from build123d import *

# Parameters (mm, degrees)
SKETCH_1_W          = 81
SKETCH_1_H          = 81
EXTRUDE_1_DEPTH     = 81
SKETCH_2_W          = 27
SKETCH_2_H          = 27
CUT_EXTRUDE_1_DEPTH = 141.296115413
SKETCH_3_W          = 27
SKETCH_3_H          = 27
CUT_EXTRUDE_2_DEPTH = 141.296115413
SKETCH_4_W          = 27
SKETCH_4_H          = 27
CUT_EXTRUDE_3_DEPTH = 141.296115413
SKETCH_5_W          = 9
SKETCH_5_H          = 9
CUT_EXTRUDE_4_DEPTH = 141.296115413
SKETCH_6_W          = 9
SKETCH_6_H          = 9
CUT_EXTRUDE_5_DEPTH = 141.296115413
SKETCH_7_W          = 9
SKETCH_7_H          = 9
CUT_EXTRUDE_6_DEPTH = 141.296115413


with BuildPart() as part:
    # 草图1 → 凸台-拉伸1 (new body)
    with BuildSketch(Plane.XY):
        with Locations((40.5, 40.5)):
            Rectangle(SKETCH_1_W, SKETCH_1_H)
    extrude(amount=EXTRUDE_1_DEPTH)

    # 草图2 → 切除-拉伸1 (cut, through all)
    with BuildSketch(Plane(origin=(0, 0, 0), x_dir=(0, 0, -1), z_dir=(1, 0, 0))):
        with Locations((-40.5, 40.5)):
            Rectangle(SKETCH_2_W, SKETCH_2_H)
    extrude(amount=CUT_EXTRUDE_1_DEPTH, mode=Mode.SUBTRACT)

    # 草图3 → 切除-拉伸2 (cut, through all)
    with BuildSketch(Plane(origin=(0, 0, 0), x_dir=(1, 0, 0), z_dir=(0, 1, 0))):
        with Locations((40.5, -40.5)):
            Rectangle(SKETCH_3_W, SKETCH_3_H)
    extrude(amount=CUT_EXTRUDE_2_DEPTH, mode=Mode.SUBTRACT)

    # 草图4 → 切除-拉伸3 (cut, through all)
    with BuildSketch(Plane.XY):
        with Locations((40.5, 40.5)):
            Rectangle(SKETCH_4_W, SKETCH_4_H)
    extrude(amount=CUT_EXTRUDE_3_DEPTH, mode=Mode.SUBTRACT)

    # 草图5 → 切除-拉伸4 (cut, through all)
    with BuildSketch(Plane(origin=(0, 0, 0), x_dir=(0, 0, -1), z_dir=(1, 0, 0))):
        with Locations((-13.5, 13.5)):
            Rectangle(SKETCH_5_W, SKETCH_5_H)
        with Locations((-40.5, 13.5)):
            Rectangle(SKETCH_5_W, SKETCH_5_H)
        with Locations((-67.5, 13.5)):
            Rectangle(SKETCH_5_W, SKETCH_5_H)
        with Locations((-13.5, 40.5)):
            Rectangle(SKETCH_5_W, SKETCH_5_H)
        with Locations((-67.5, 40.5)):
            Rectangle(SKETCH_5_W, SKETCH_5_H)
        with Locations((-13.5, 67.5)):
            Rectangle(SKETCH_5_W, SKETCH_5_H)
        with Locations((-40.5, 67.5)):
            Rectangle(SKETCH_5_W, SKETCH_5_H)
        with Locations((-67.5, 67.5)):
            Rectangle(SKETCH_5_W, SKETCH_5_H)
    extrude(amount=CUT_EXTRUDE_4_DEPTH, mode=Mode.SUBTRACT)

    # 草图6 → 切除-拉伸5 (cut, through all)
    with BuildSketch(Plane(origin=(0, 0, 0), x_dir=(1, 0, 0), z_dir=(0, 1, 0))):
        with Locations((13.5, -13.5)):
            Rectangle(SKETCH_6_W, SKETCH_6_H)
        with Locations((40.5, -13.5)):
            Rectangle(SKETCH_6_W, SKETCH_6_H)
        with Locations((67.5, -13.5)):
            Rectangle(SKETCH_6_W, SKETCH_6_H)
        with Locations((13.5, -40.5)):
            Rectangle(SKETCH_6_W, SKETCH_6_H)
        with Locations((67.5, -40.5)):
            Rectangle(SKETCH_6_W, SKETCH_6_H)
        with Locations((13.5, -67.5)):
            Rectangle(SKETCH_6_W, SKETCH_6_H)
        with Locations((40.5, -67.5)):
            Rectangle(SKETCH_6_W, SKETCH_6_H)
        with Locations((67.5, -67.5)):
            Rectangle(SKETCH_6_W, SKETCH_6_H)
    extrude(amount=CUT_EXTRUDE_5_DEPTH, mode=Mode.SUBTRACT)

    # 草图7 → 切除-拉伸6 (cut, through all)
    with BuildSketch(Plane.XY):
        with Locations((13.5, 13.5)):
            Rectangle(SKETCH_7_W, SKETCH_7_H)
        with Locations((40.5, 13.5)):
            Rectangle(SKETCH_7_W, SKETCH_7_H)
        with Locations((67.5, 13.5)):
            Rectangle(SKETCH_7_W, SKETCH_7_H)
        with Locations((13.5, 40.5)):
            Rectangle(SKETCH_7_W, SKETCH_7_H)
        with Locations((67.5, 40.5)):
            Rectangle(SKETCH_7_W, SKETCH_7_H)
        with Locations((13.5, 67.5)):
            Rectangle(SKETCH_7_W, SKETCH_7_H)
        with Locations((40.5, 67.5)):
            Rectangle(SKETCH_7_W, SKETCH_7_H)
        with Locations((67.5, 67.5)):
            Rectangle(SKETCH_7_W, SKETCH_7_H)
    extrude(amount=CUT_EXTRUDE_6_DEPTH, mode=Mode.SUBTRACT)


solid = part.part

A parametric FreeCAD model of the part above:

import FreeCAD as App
import Part
import Sketcher
Q = App.Units.Quantity

doc = App.newDocument("Part")
params = doc.addObject("Spreadsheet::Sheet", "Params")
for row, (alias, value) in enumerate([
    ("sketch1_width", "81 mm"),
    ("pad1_length", "81 mm"),
    ("sketch2_width", "27 mm"),
    ("sketch3_width", "27 mm"),
    ("sketch4_width", "27 mm"),
    ("sketch5_width", "9 mm"),
    ("sketch6_width", "9 mm"),
    ("sketch7_width", "9 mm"),
], start=1):
    params.set(f"A{row}", alias)
    params.set(f"B{row}", "=" + value)
    params.setAlias(f"B{row}", alias)

body = doc.addObject("PartDesign::Body", "Body")

sketch1 = body.newObject("Sketcher::SketchObject", "Sketch")
sketch1.AttachmentSupport = (doc.getObject("XY_Plane"), [""])
sketch1.MapMode = "FlatFace"
sketch1.addGeometry(Part.LineSegment(App.Vector(0, 81, 0), App.Vector(0, 0, 0)), False)
sketch1.addGeometry(Part.LineSegment(App.Vector(0, 0, 0), App.Vector(81, 0, 0)), False)
sketch1.addGeometry(Part.LineSegment(App.Vector(81, 0, 0), App.Vector(81, 81, 0)), False)
sketch1.addGeometry(Part.LineSegment(App.Vector(81, 81, 0), App.Vector(0, 81, 0)), False)
sketch1.addConstraint(Sketcher.Constraint("Coincident", 0, 2, 1, 1))
sketch1.addConstraint(Sketcher.Constraint("Coincident", 1, 2, 2, 1))
sketch1.addConstraint(Sketcher.Constraint("Coincident", 2, 2, 3, 1))
sketch1.addConstraint(Sketcher.Constraint("Coincident", 3, 2, 0, 1))
sketch1.addConstraint(Sketcher.Constraint("Vertical", 0))
sketch1.addConstraint(Sketcher.Constraint("Horizontal", 1))
sketch1.addConstraint(Sketcher.Constraint("Vertical", 2))
sketch1.addConstraint(Sketcher.Constraint("Horizontal", 3))
sketch1.addConstraint(Sketcher.Constraint("Coincident", 0, 2, -1, 1))
sketch1.addConstraint(Sketcher.Constraint("Equal", 3, 0))
sketch1.addConstraint(Sketcher.Constraint("DistanceX", 1, 1, 1, 2, Q("81 mm")))
sketch1.setExpression("Constraints[10]", "Params.sketch1_width")
pad1 = body.newObject("PartDesign::Pad", "Pad")
pad1.Profile = sketch1
pad1.setExpression("Length", "Params.pad1_length")

sketch2 = body.newObject("Sketcher::SketchObject", "Sketch001")
sketch2.AttachmentSupport = (doc.getObject("YZ_Plane"), [""])
sketch2.MapMode = "FlatFace"
sketch2.addGeometry(Part.LineSegment(App.Vector(54, 54, 0), App.Vector(27, 54, 0)), False)
sketch2.addGeometry(Part.LineSegment(App.Vector(27, 54, 0), App.Vector(27, 27, 0)), False)
sketch2.addGeometry(Part.LineSegment(App.Vector(27, 27, 0), App.Vector(54, 27, 0)), False)
sketch2.addGeometry(Part.LineSegment(App.Vector(54, 27, 0), App.Vector(54, 54, 0)), False)
sketch2.addConstraint(Sketcher.Constraint("Coincident", 0, 2, 1, 1))
sketch2.addConstraint(Sketcher.Constraint("Coincident", 1, 2, 2, 1))
sketch2.addConstraint(Sketcher.Constraint("Coincident", 2, 2, 3, 1))
sketch2.addConstraint(Sketcher.Constraint("Coincident", 3, 2, 0, 1))
sketch2.addConstraint(Sketcher.Constraint("Horizontal", 0))
sketch2.addConstraint(Sketcher.Constraint("Vertical", 1))
sketch2.addConstraint(Sketcher.Constraint("Horizontal", 2))
sketch2.addConstraint(Sketcher.Constraint("Vertical", 3))
sketch2.addConstraint(Sketcher.Constraint("Equal", 2, 1))
sketch2.addConstraint(Sketcher.Constraint("DistanceX", 0, 2, 0, 1, Q("27 mm")))
sketch2.addConstraint(Sketcher.Constraint("DistanceX", -1, 1, 0, 2, Q("27 mm")))
sketch2.addConstraint(Sketcher.Constraint("DistanceY", -1, 1, 0, 2, Q("54 mm")))
sketch2.setExpression("Constraints[9]", "Params.sketch2_width")
pocket1 = body.newObject("PartDesign::Pocket", "Pocket")
pocket1.Profile = sketch2
pocket1.Type = "ThroughAll"
pocket1.Reversed = True

sketch3 = body.newObject("Sketcher::SketchObject", "Sketch002")
sketch3.AttachmentSupport = (doc.getObject("XZ_Plane"), [""])
sketch3.MapMode = "FlatFace"
sketch3.addGeometry(Part.LineSegment(App.Vector(27, 27, 0), App.Vector(27, 54, 0)), False)
sketch3.addGeometry(Part.LineSegment(App.Vector(27, 54, 0), App.Vector(54, 54, 0)), False)
sketch3.addGeometry(Part.LineSegment(App.Vector(54, 54, 0), App.Vector(54, 27, 0)), False)
sketch3.addGeometry(Part.LineSegment(App.Vector(54, 27, 0), App.Vector(27, 27, 0)), False)
sketch3.addConstraint(Sketcher.Constraint("Coincident", 0, 2, 1, 1))
sketch3.addConstraint(Sketcher.Constraint("Coincident", 1, 2, 2, 1))
sketch3.addConstraint(Sketcher.Constraint("Coincident", 2, 2, 3, 1))
sketch3.addConstraint(Sketcher.Constraint("Coincident", 3, 2, 0, 1))
sketch3.addConstraint(Sketcher.Constraint("Vertical", 0))
sketch3.addConstraint(Sketcher.Constraint("Horizontal", 1))
sketch3.addConstraint(Sketcher.Constraint("Vertical", 2))
sketch3.addConstraint(Sketcher.Constraint("Horizontal", 3))
sketch3.addConstraint(Sketcher.Constraint("Equal", 3, 0))
sketch3.addConstraint(Sketcher.Constraint("DistanceX", 1, 1, 1, 2, Q("27 mm")))
sketch3.addConstraint(Sketcher.Constraint("DistanceX", -1, 1, 0, 2, Q("27 mm")))
sketch3.addConstraint(Sketcher.Constraint("DistanceY", -1, 1, 0, 2, Q("54 mm")))
sketch3.setExpression("Constraints[9]", "Params.sketch3_width")
pocket2 = body.newObject("PartDesign::Pocket", "Pocket001")
pocket2.Profile = sketch3
pocket2.Type = "ThroughAll"

sketch4 = body.newObject("Sketcher::SketchObject", "Sketch003")
sketch4.AttachmentSupport = (doc.getObject("XY_Plane"), [""])
sketch4.MapMode = "FlatFace"
sketch4.addGeometry(Part.LineSegment(App.Vector(27, 54, 0), App.Vector(27, 27, 0)), False)
sketch4.addGeometry(Part.LineSegment(App.Vector(27, 27, 0), App.Vector(54, 27, 0)), False)
sketch4.addGeometry(Part.LineSegment(App.Vector(54, 27, 0), App.Vector(54, 54, 0)), False)
sketch4.addGeometry(Part.LineSegment(App.Vector(54, 54, 0), App.Vector(27, 54, 0)), False)
sketch4.addConstraint(Sketcher.Constraint("Coincident", 0, 2, 1, 1))
sketch4.addConstraint(Sketcher.Constraint("Coincident", 1, 2, 2, 1))
sketch4.addConstraint(Sketcher.Constraint("Coincident", 2, 2, 3, 1))
sketch4.addConstraint(Sketcher.Constraint("Coincident", 3, 2, 0, 1))
sketch4.addConstraint(Sketcher.Constraint("Vertical", 0))
sketch4.addConstraint(Sketcher.Constraint("Horizontal", 1))
sketch4.addConstraint(Sketcher.Constraint("Vertical", 2))
sketch4.addConstraint(Sketcher.Constraint("Horizontal", 3))
sketch4.addConstraint(Sketcher.Constraint("Equal", 3, 0))
sketch4.addConstraint(Sketcher.Constraint("DistanceX", 1, 1, 1, 2, Q("27 mm")))
sketch4.addConstraint(Sketcher.Constraint("DistanceX", -1, 1, 0, 2, Q("27 mm")))
sketch4.addConstraint(Sketcher.Constraint("DistanceY", -1, 1, 0, 2, Q("27 mm")))
sketch4.setExpression("Constraints[9]", "Params.sketch4_width")
pocket3 = body.newObject("PartDesign::Pocket", "Pocket002")
pocket3.Profile = sketch4
pocket3.Type = "ThroughAll"
pocket3.Reversed = True

sketch5 = body.newObject("Sketcher::SketchObject", "Sketch004")
sketch5.AttachmentSupport = (doc.getObject("YZ_Plane"), [""])
sketch5.MapMode = "FlatFace"
sketch5.addGeometry(Part.LineSegment(App.Vector(18, 18, 0), App.Vector(9, 18, 0)), False)
sketch5.addGeometry(Part.LineSegment(App.Vector(9, 18, 0), App.Vector(9, 9, 0)), False)
sketch5.addGeometry(Part.LineSegment(App.Vector(9, 9, 0), App.Vector(18, 9, 0)), False)
sketch5.addGeometry(Part.LineSegment(App.Vector(18, 9, 0), App.Vector(18, 18, 0)), False)
sketch5.addGeometry(Part.LineSegment(App.Vector(18, 45, 0), App.Vector(9, 45, 0)), False)
sketch5.addGeometry(Part.LineSegment(App.Vector(9, 45, 0), App.Vector(9, 36, 0)), False)
sketch5.addGeometry(Part.LineSegment(App.Vector(9, 36, 0), App.Vector(18, 36, 0)), False)
sketch5.addGeometry(Part.LineSegment(App.Vector(18, 36, 0), App.Vector(18, 45, 0)), False)
sketch5.addGeometry(Part.LineSegment(App.Vector(18, 72, 0), App.Vector(9, 72, 0)), False)
sketch5.addGeometry(Part.LineSegment(App.Vector(9, 72, 0), App.Vector(9, 63, 0)), False)
sketch5.addGeometry(Part.LineSegment(App.Vector(9, 63, 0), App.Vector(18, 63, 0)), False)
sketch5.addGeometry(Part.LineSegment(App.Vector(18, 63, 0), App.Vector(18, 72, 0)), False)
sketch5.addGeometry(Part.LineSegment(App.Vector(45, 18, 0), App.Vector(36, 18, 0)), False)
sketch5.addGeometry(Part.LineSegment(App.Vector(36, 18, 0), App.Vector(36, 9, 0)), False)
sketch5.addGeometry(Part.LineSegment(App.Vector(36, 9, 0), App.Vector(45, 9, 0)), False)
sketch5.addGeometry(Part.LineSegment(App.Vector(45, 9, 0), App.Vector(45, 18, 0)), False)
sketch5.addGeometry(Part.LineSegment(App.Vector(45, 72, 0), App.Vector(36, 72, 0)), False)
sketch5.addGeometry(Part.LineSegment(App.Vector(36, 72, 0), App.Vector(36, 63, 0)), False)
sketch5.addGeometry(Part.LineSegment(App.Vector(36, 63, 0), App.Vector(45, 63, 0)), False)
sketch5.addGeometry(Part.LineSegment(App.Vector(45, 63, 0), App.Vector(45, 72, 0)), False)
sketch5.addGeometry(Part.LineSegment(App.Vector(72, 18, 0), App.Vector(63, 18, 0)), False)
sketch5.addGeometry(Part.LineSegment(App.Vector(63, 18, 0), App.Vector(63, 9, 0)), False)
sketch5.addGeometry(Part.LineSegment(App.Vector(63, 9, 0), App.Vector(72, 9, 0)), False)
sketch5.addGeometry(Part.LineSegment(App.Vector(72, 9, 0), App.Vector(72, 18, 0)), False)
sketch5.addGeometry(Part.LineSegment(App.Vector(72, 45, 0), App.Vector(63, 45, 0)), False)
sketch5.addGeometry(Part.LineSegment(App.Vector(63, 45, 0), App.Vector(63, 36, 0)), False)
sketch5.addGeometry(Part.LineSegment(App.Vector(63, 36, 0), App.Vector(72, 36, 0)), False)
sketch5.addGeometry(Part.LineSegment(App.Vector(72, 36, 0), App.Vector(72, 45, 0)), False)
sketch5.addGeometry(Part.LineSegment(App.Vector(72, 72, 0), App.Vector(63, 72, 0)), False)
sketch5.addGeometry(Part.LineSegment(App.Vector(63, 72, 0), App.Vector(63, 63, 0)), False)
sketch5.addGeometry(Part.LineSegment(App.Vector(63, 63, 0), App.Vector(72, 63, 0)), False)
sketch5.addGeometry(Part.LineSegment(App.Vector(72, 63, 0), App.Vector(72, 72, 0)), False)
sketch5.addConstraint(Sketcher.Constraint("Coincident", 0, 2, 1, 1))
sketch5.addConstraint(Sketcher.Constraint("Coincident", 1, 2, 2, 1))
sketch5.addConstraint(Sketcher.Constraint("Coincident", 2, 2, 3, 1))
sketch5.addConstraint(Sketcher.Constraint("Coincident", 3, 2, 0, 1))
sketch5.addConstraint(Sketcher.Constraint("Coincident", 4, 2, 5, 1))
sketch5.addConstraint(Sketcher.Constraint("Coincident", 5, 2, 6, 1))
sketch5.addConstraint(Sketcher.Constraint("Coincident", 6, 2, 7, 1))
sketch5.addConstraint(Sketcher.Constraint("Coincident", 7, 2, 4, 1))
sketch5.addConstraint(Sketcher.Constraint("Coincident", 8, 2, 9, 1))
sketch5.addConstraint(Sketcher.Constraint("Coincident", 9, 2, 10, 1))
sketch5.addConstraint(Sketcher.Constraint("Coincident", 10, 2, 11, 1))
sketch5.addConstraint(Sketcher.Constraint("Coincident", 11, 2, 8, 1))
sketch5.addConstraint(Sketcher.Constraint("Coincident", 12, 2, 13, 1))
sketch5.addConstraint(Sketcher.Constraint("Coincident", 13, 2, 14, 1))
sketch5.addConstraint(Sketcher.Constraint("Coincident", 14, 2, 15, 1))
sketch5.addConstraint(Sketcher.Constraint("Coincident", 15, 2, 12, 1))
sketch5.addConstraint(Sketcher.Constraint("Coincident", 16, 2, 17, 1))
sketch5.addConstraint(Sketcher.Constraint("Coincident", 17, 2, 18, 1))
sketch5.addConstraint(Sketcher.Constraint("Coincident", 18, 2, 19, 1))
sketch5.addConstraint(Sketcher.Constraint("Coincident", 19, 2, 16, 1))
sketch5.addConstraint(Sketcher.Constraint("Coincident", 20, 2, 21, 1))
sketch5.addConstraint(Sketcher.Constraint("Coincident", 21, 2, 22, 1))
sketch5.addConstraint(Sketcher.Constraint("Coincident", 22, 2, 23, 1))
sketch5.addConstraint(Sketcher.Constraint("Coincident", 23, 2, 20, 1))
sketch5.addConstraint(Sketcher.Constraint("Coincident", 24, 2, 25, 1))
sketch5.addConstraint(Sketcher.Constraint("Coincident", 25, 2, 26, 1))
sketch5.addConstraint(Sketcher.Constraint("Coincident", 26, 2, 27, 1))
sketch5.addConstraint(Sketcher.Constraint("Coincident", 27, 2, 24, 1))
sketch5.addConstraint(Sketcher.Constraint("Coincident", 28, 2, 29, 1))
sketch5.addConstraint(Sketcher.Constraint("Coincident", 29, 2, 30, 1))
sketch5.addConstraint(Sketcher.Constraint("Coincident", 30, 2, 31, 1))
sketch5.addConstraint(Sketcher.Constraint("Coincident", 31, 2, 28, 1))
sketch5.addConstraint(Sketcher.Constraint("Horizontal", 0))
sketch5.addConstraint(Sketcher.Constraint("Vertical", 1))
sketch5.addConstraint(Sketcher.Constraint("Horizontal", 2))
sketch5.addConstraint(Sketcher.Constraint("Vertical", 3))
sketch5.addConstraint(Sketcher.Constraint("Horizontal", 4))
sketch5.addConstraint(Sketcher.Constraint("Vertical", 5))
sketch5.addConstraint(Sketcher.Constraint("Horizontal", 6))
sketch5.addConstraint(Sketcher.Constraint("Vertical", 7))
sketch5.addConstraint(Sketcher.Constraint("Horizontal", 8))
sketch5.addConstraint(Sketcher.Constraint("Vertical", 9))
sketch5.addConstraint(Sketcher.Constraint("Horizontal", 10))
sketch5.addConstraint(Sketcher.Constraint("Vertical", 11))
sketch5.addConstraint(Sketcher.Constraint("Horizontal", 12))
sketch5.addConstraint(Sketcher.Constraint("Vertical", 13))
sketch5.addConstraint(Sketcher.Constraint("Horizontal", 14))
sketch5.addConstraint(Sketcher.Constraint("Vertical", 15))
sketch5.addConstraint(Sketcher.Constraint("Horizontal", 16))
sketch5.addConstraint(Sketcher.Constraint("Vertical", 17))
sketch5.addConstraint(Sketcher.Constraint("Horizontal", 18))
sketch5.addConstraint(Sketcher.Constraint("Vertical", 19))
sketch5.addConstraint(Sketcher.Constraint("Horizontal", 20))
sketch5.addConstraint(Sketcher.Constraint("Vertical", 21))
sketch5.addConstraint(Sketcher.Constraint("Horizontal", 22))
sketch5.addConstraint(Sketcher.Constraint("Vertical", 23))
sketch5.addConstraint(Sketcher.Constraint("Horizontal", 24))
sketch5.addConstraint(Sketcher.Constraint("Vertical", 25))
sketch5.addConstraint(Sketcher.Constraint("Horizontal", 26))
sketch5.addConstraint(Sketcher.Constraint("Vertical", 27))
sketch5.addConstraint(Sketcher.Constraint("Horizontal", 28))
sketch5.addConstraint(Sketcher.Constraint("Vertical", 29))
sketch5.addConstraint(Sketcher.Constraint("Horizontal", 30))
sketch5.addConstraint(Sketcher.Constraint("Vertical", 31))
sketch5.addConstraint(Sketcher.Constraint("Horizontal", 3, 2, 12, 2))
sketch5.addConstraint(Sketcher.Constraint("Horizontal", 2, 2, 13, 2))
sketch5.addConstraint(Sketcher.Constraint("Horizontal", 11, 2, 16, 2))
sketch5.addConstraint(Sketcher.Constraint("Horizontal", 10, 2, 17, 2))
sketch5.addConstraint(Sketcher.Constraint("Horizontal", 15, 2, 20, 2))
sketch5.addConstraint(Sketcher.Constraint("Horizontal", 14, 2, 21, 2))
sketch5.addConstraint(Sketcher.Constraint("Horizontal", 7, 2, 24, 2))
sketch5.addConstraint(Sketcher.Constraint("Horizontal", 6, 2, 25, 2))
sketch5.addConstraint(Sketcher.Constraint("Horizontal", 19, 2, 28, 2))
sketch5.addConstraint(Sketcher.Constraint("Horizontal", 18, 2, 29, 2))
sketch5.addConstraint(Sketcher.Constraint("Vertical", 1, 2, 4, 2))
sketch5.addConstraint(Sketcher.Constraint("Vertical", 3, 2, 6, 2))
sketch5.addConstraint(Sketcher.Constraint("Vertical", 5, 2, 8, 2))
sketch5.addConstraint(Sketcher.Constraint("Vertical", 7, 2, 10, 2))
sketch5.addConstraint(Sketcher.Constraint("Vertical", 13, 2, 16, 2))
sketch5.addConstraint(Sketcher.Constraint("Vertical", 15, 2, 18, 2))
sketch5.addConstraint(Sketcher.Constraint("Vertical", 21, 2, 24, 2))
sketch5.addConstraint(Sketcher.Constraint("Vertical", 23, 2, 26, 2))
sketch5.addConstraint(Sketcher.Constraint("Vertical", 25, 2, 28, 2))
sketch5.addConstraint(Sketcher.Constraint("Vertical", 27, 2, 30, 2))
sketch5.addConstraint(Sketcher.Constraint("Equal", 10, 12))
sketch5.addConstraint(Sketcher.Constraint("Equal", 18, 20))
sketch5.addConstraint(Sketcher.Constraint("Equal", 30, 1))
sketch5.addConstraint(Sketcher.Constraint("Equal", 3, 5))
sketch5.addConstraint(Sketcher.Constraint("Equal", 7, 9))
sketch5.addConstraint(Sketcher.Constraint("DistanceX", 0, 2, 0, 1, Q("9 mm")))
sketch5.addConstraint(Sketcher.Constraint("DistanceX", -1, 1, 0, 2, Q("9 mm")))
sketch5.addConstraint(Sketcher.Constraint("DistanceY", -1, 1, 0, 2, Q("18 mm")))
sketch5.addConstraint(Sketcher.Constraint("DistanceY", -1, 1, 4, 2, Q("45 mm")))
sketch5.addConstraint(Sketcher.Constraint("DistanceY", -1, 1, 8, 2, Q("72 mm")))
sketch5.addConstraint(Sketcher.Constraint("DistanceX", -1, 1, 12, 2, Q("36 mm")))
sketch5.addConstraint(Sketcher.Constraint("DistanceX", -1, 1, 20, 2, Q("63 mm")))
sketch5.setExpression("Constraints[89]", "Params.sketch5_width")
pocket4 = body.newObject("PartDesign::Pocket", "Pocket003")
pocket4.Profile = sketch5
pocket4.Type = "ThroughAll"
pocket4.Reversed = True

sketch6 = body.newObject("Sketcher::SketchObject", "Sketch005")
sketch6.AttachmentSupport = (doc.getObject("XZ_Plane"), [""])
sketch6.MapMode = "FlatFace"
sketch6.addGeometry(Part.LineSegment(App.Vector(9, 9, 0), App.Vector(9, 18, 0)), False)
sketch6.addGeometry(Part.LineSegment(App.Vector(9, 18, 0), App.Vector(18, 18, 0)), False)
sketch6.addGeometry(Part.LineSegment(App.Vector(18, 18, 0), App.Vector(18, 9, 0)), False)
sketch6.addGeometry(Part.LineSegment(App.Vector(18, 9, 0), App.Vector(9, 9, 0)), False)
sketch6.addGeometry(Part.LineSegment(App.Vector(36, 9, 0), App.Vector(36, 18, 0)), False)
sketch6.addGeometry(Part.LineSegment(App.Vector(36, 18, 0), App.Vector(45, 18, 0)), False)
sketch6.addGeometry(Part.LineSegment(App.Vector(45, 18, 0), App.Vector(45, 9, 0)), False)
sketch6.addGeometry(Part.LineSegment(App.Vector(45, 9, 0), App.Vector(36, 9, 0)), False)
sketch6.addGeometry(Part.LineSegment(App.Vector(63, 9, 0), App.Vector(63, 18, 0)), False)
sketch6.addGeometry(Part.LineSegment(App.Vector(63, 18, 0), App.Vector(72, 18, 0)), False)
sketch6.addGeometry(Part.LineSegment(App.Vector(72, 18, 0), App.Vector(72, 9, 0)), False)
sketch6.addGeometry(Part.LineSegment(App.Vector(72, 9, 0), App.Vector(63, 9, 0)), False)
sketch6.addGeometry(Part.LineSegment(App.Vector(9, 36, 0), App.Vector(9, 45, 0)), False)
sketch6.addGeometry(Part.LineSegment(App.Vector(9, 45, 0), App.Vector(18, 45, 0)), False)
sketch6.addGeometry(Part.LineSegment(App.Vector(18, 45, 0), App.Vector(18, 36, 0)), False)
sketch6.addGeometry(Part.LineSegment(App.Vector(18, 36, 0), App.Vector(9, 36, 0)), False)
sketch6.addGeometry(Part.LineSegment(App.Vector(63, 36, 0), App.Vector(63, 45, 0)), False)
sketch6.addGeometry(Part.LineSegment(App.Vector(63, 45, 0), App.Vector(72, 45, 0)), False)
sketch6.addGeometry(Part.LineSegment(App.Vector(72, 45, 0), App.Vector(72, 36, 0)), False)
sketch6.addGeometry(Part.LineSegment(App.Vector(72, 36, 0), App.Vector(63, 36, 0)), False)
sketch6.addGeometry(Part.LineSegment(App.Vector(9, 63, 0), App.Vector(9, 72, 0)), False)
sketch6.addGeometry(Part.LineSegment(App.Vector(9, 72, 0), App.Vector(18, 72, 0)), False)
sketch6.addGeometry(Part.LineSegment(App.Vector(18, 72, 0), App.Vector(18, 63, 0)), False)
sketch6.addGeometry(Part.LineSegment(App.Vector(18, 63, 0), App.Vector(9, 63, 0)), False)
sketch6.addGeometry(Part.LineSegment(App.Vector(36, 63, 0), App.Vector(36, 72, 0)), False)
sketch6.addGeometry(Part.LineSegment(App.Vector(36, 72, 0), App.Vector(45, 72, 0)), False)
sketch6.addGeometry(Part.LineSegment(App.Vector(45, 72, 0), App.Vector(45, 63, 0)), False)
sketch6.addGeometry(Part.LineSegment(App.Vector(45, 63, 0), App.Vector(36, 63, 0)), False)
sketch6.addGeometry(Part.LineSegment(App.Vector(63, 63, 0), App.Vector(63, 72, 0)), False)
sketch6.addGeometry(Part.LineSegment(App.Vector(63, 72, 0), App.Vector(72, 72, 0)), False)
sketch6.addGeometry(Part.LineSegment(App.Vector(72, 72, 0), App.Vector(72, 63, 0)), False)
sketch6.addGeometry(Part.LineSegment(App.Vector(72, 63, 0), App.Vector(63, 63, 0)), False)
sketch6.addConstraint(Sketcher.Constraint("Coincident", 0, 2, 1, 1))
sketch6.addConstraint(Sketcher.Constraint("Coincident", 1, 2, 2, 1))
sketch6.addConstraint(Sketcher.Constraint("Coincident", 2, 2, 3, 1))
sketch6.addConstraint(Sketcher.Constraint("Coincident", 3, 2, 0, 1))
sketch6.addConstraint(Sketcher.Constraint("Coincident", 4, 2, 5, 1))
sketch6.addConstraint(Sketcher.Constraint("Coincident", 5, 2, 6, 1))
sketch6.addConstraint(Sketcher.Constraint("Coincident", 6, 2, 7, 1))
sketch6.addConstraint(Sketcher.Constraint("Coincident", 7, 2, 4, 1))
sketch6.addConstraint(Sketcher.Constraint("Coincident", 8, 2, 9, 1))
sketch6.addConstraint(Sketcher.Constraint("Coincident", 9, 2, 10, 1))
sketch6.addConstraint(Sketcher.Constraint("Coincident", 10, 2, 11, 1))
sketch6.addConstraint(Sketcher.Constraint("Coincident", 11, 2, 8, 1))
sketch6.addConstraint(Sketcher.Constraint("Coincident", 12, 2, 13, 1))
sketch6.addConstraint(Sketcher.Constraint("Coincident", 13, 2, 14, 1))
sketch6.addConstraint(Sketcher.Constraint("Coincident", 14, 2, 15, 1))
sketch6.addConstraint(Sketcher.Constraint("Coincident", 15, 2, 12, 1))
sketch6.addConstraint(Sketcher.Constraint("Coincident", 16, 2, 17, 1))
sketch6.addConstraint(Sketcher.Constraint("Coincident", 17, 2, 18, 1))
sketch6.addConstraint(Sketcher.Constraint("Coincident", 18, 2, 19, 1))
sketch6.addConstraint(Sketcher.Constraint("Coincident", 19, 2, 16, 1))
sketch6.addConstraint(Sketcher.Constraint("Coincident", 20, 2, 21, 1))
sketch6.addConstraint(Sketcher.Constraint("Coincident", 21, 2, 22, 1))
sketch6.addConstraint(Sketcher.Constraint("Coincident", 22, 2, 23, 1))
sketch6.addConstraint(Sketcher.Constraint("Coincident", 23, 2, 20, 1))
sketch6.addConstraint(Sketcher.Constraint("Coincident", 24, 2, 25, 1))
sketch6.addConstraint(Sketcher.Constraint("Coincident", 25, 2, 26, 1))
sketch6.addConstraint(Sketcher.Constraint("Coincident", 26, 2, 27, 1))
sketch6.addConstraint(Sketcher.Constraint("Coincident", 27, 2, 24, 1))
sketch6.addConstraint(Sketcher.Constraint("Coincident", 28, 2, 29, 1))
sketch6.addConstraint(Sketcher.Constraint("Coincident", 29, 2, 30, 1))
sketch6.addConstraint(Sketcher.Constraint("Coincident", 30, 2, 31, 1))
sketch6.addConstraint(Sketcher.Constraint("Coincident", 31, 2, 28, 1))
sketch6.addConstraint(Sketcher.Constraint("Vertical", 0))
sketch6.addConstraint(Sketcher.Constraint("Horizontal", 1))
sketch6.addConstraint(Sketcher.Constraint("Vertical", 2))
sketch6.addConstraint(Sketcher.Constraint("Horizontal", 3))
sketch6.addConstraint(Sketcher.Constraint("Vertical", 4))
sketch6.addConstraint(Sketcher.Constraint("Horizontal", 5))
sketch6.addConstraint(Sketcher.Constraint("Vertical", 6))
sketch6.addConstraint(Sketcher.Constraint("Horizontal", 7))
sketch6.addConstraint(Sketcher.Constraint("Vertical", 8))
sketch6.addConstraint(Sketcher.Constraint("Horizontal", 9))
sketch6.addConstraint(Sketcher.Constraint("Vertical", 10))
sketch6.addConstraint(Sketcher.Constraint("Horizontal", 11))
sketch6.addConstraint(Sketcher.Constraint("Vertical", 12))
sketch6.addConstraint(Sketcher.Constraint("Horizontal", 13))
sketch6.addConstraint(Sketcher.Constraint("Vertical", 14))
sketch6.addConstraint(Sketcher.Constraint("Horizontal", 15))
sketch6.addConstraint(Sketcher.Constraint("Vertical", 16))
sketch6.addConstraint(Sketcher.Constraint("Horizontal", 17))
sketch6.addConstraint(Sketcher.Constraint("Vertical", 18))
sketch6.addConstraint(Sketcher.Constraint("Horizontal", 19))
sketch6.addConstraint(Sketcher.Constraint("Vertical", 20))
sketch6.addConstraint(Sketcher.Constraint("Horizontal", 21))
sketch6.addConstraint(Sketcher.Constraint("Vertical", 22))
sketch6.addConstraint(Sketcher.Constraint("Horizontal", 23))
sketch6.addConstraint(Sketcher.Constraint("Vertical", 24))
sketch6.addConstraint(Sketcher.Constraint("Horizontal", 25))
sketch6.addConstraint(Sketcher.Constraint("Vertical", 26))
sketch6.addConstraint(Sketcher.Constraint("Horizontal", 27))
sketch6.addConstraint(Sketcher.Constraint("Vertical", 28))
sketch6.addConstraint(Sketcher.Constraint("Horizontal", 29))
sketch6.addConstraint(Sketcher.Constraint("Vertical", 30))
sketch6.addConstraint(Sketcher.Constraint("Horizontal", 31))
sketch6.addConstraint(Sketcher.Constraint("Horizontal", 1, 2, 4, 2))
sketch6.addConstraint(Sketcher.Constraint("Horizontal", 3, 2, 6, 2))
sketch6.addConstraint(Sketcher.Constraint("Horizontal", 5, 2, 8, 2))
sketch6.addConstraint(Sketcher.Constraint("Horizontal", 7, 2, 10, 2))
sketch6.addConstraint(Sketcher.Constraint("Horizontal", 13, 2, 16, 2))
sketch6.addConstraint(Sketcher.Constraint("Horizontal", 15, 2, 18, 2))
sketch6.addConstraint(Sketcher.Constraint("Horizontal", 21, 2, 24, 2))
sketch6.addConstraint(Sketcher.Constraint("Horizontal", 23, 2, 26, 2))
sketch6.addConstraint(Sketcher.Constraint("Horizontal", 25, 2, 28, 2))
sketch6.addConstraint(Sketcher.Constraint("Horizontal", 27, 2, 30, 2))
sketch6.addConstraint(Sketcher.Constraint("Vertical", 3, 2, 12, 2))
sketch6.addConstraint(Sketcher.Constraint("Vertical", 2, 2, 13, 2))
sketch6.addConstraint(Sketcher.Constraint("Vertical", 11, 2, 16, 2))
sketch6.addConstraint(Sketcher.Constraint("Vertical", 10, 2, 17, 2))
sketch6.addConstraint(Sketcher.Constraint("Vertical", 15, 2, 20, 2))
sketch6.addConstraint(Sketcher.Constraint("Vertical", 14, 2, 21, 2))
sketch6.addConstraint(Sketcher.Constraint("Vertical", 7, 2, 24, 2))
sketch6.addConstraint(Sketcher.Constraint("Vertical", 6, 2, 25, 2))
sketch6.addConstraint(Sketcher.Constraint("Vertical", 19, 2, 28, 2))
sketch6.addConstraint(Sketcher.Constraint("Vertical", 18, 2, 29, 2))
sketch6.addConstraint(Sketcher.Constraint("Equal", 3, 5))
sketch6.addConstraint(Sketcher.Constraint("Equal", 7, 9))
sketch6.addConstraint(Sketcher.Constraint("Equal", 31, 0))
sketch6.addConstraint(Sketcher.Constraint("Equal", 10, 12))
sketch6.addConstraint(Sketcher.Constraint("Equal", 18, 20))
sketch6.addConstraint(Sketcher.Constraint("DistanceX", 1, 1, 1, 2, Q("9 mm")))
sketch6.addConstraint(Sketcher.Constraint("DistanceX", -1, 1, 0, 2, Q("9 mm")))
sketch6.addConstraint(Sketcher.Constraint("DistanceY", -1, 1, 0, 2, Q("18 mm")))
sketch6.addConstraint(Sketcher.Constraint("DistanceX", -1, 1, 4, 2, Q("36 mm")))
sketch6.addConstraint(Sketcher.Constraint("DistanceX", -1, 1, 8, 2, Q("63 mm")))
sketch6.addConstraint(Sketcher.Constraint("DistanceY", -1, 1, 12, 2, Q("45 mm")))
sketch6.addConstraint(Sketcher.Constraint("DistanceY", -1, 1, 20, 2, Q("72 mm")))
sketch6.setExpression("Constraints[89]", "Params.sketch6_width")
pocket5 = body.newObject("PartDesign::Pocket", "Pocket004")
pocket5.Profile = sketch6
pocket5.Type = "ThroughAll"

sketch7 = body.newObject("Sketcher::SketchObject", "Sketch006")
sketch7.AttachmentSupport = (doc.getObject("XY_Plane"), [""])
sketch7.MapMode = "FlatFace"
sketch7.addGeometry(Part.LineSegment(App.Vector(9, 18, 0), App.Vector(9, 9, 0)), False)
sketch7.addGeometry(Part.LineSegment(App.Vector(9, 9, 0), App.Vector(18, 9, 0)), False)
sketch7.addGeometry(Part.LineSegment(App.Vector(18, 9, 0), App.Vector(18, 18, 0)), False)
sketch7.addGeometry(Part.LineSegment(App.Vector(18, 18, 0), App.Vector(9, 18, 0)), False)
sketch7.addGeometry(Part.LineSegment(App.Vector(36, 18, 0), App.Vector(36, 9, 0)), False)
sketch7.addGeometry(Part.LineSegment(App.Vector(36, 9, 0), App.Vector(45, 9, 0)), False)
sketch7.addGeometry(Part.LineSegment(App.Vector(45, 9, 0), App.Vector(45, 18, 0)), False)
sketch7.addGeometry(Part.LineSegment(App.Vector(45, 18, 0), App.Vector(36, 18, 0)), False)
sketch7.addGeometry(Part.LineSegment(App.Vector(63, 18, 0), App.Vector(63, 9, 0)), False)
sketch7.addGeometry(Part.LineSegment(App.Vector(63, 9, 0), App.Vector(72, 9, 0)), False)
sketch7.addGeometry(Part.LineSegment(App.Vector(72, 9, 0), App.Vector(72, 18, 0)), False)
sketch7.addGeometry(Part.LineSegment(App.Vector(72, 18, 0), App.Vector(63, 18, 0)), False)
sketch7.addGeometry(Part.LineSegment(App.Vector(9, 45, 0), App.Vector(9, 36, 0)), False)
sketch7.addGeometry(Part.LineSegment(App.Vector(9, 36, 0), App.Vector(18, 36, 0)), False)
sketch7.addGeometry(Part.LineSegment(App.Vector(18, 36, 0), App.Vector(18, 45, 0)), False)
sketch7.addGeometry(Part.LineSegment(App.Vector(18, 45, 0), App.Vector(9, 45, 0)), False)
sketch7.addGeometry(Part.LineSegment(App.Vector(63, 45, 0), App.Vector(63, 36, 0)), False)
sketch7.addGeometry(Part.LineSegment(App.Vector(63, 36, 0), App.Vector(72, 36, 0)), False)
sketch7.addGeometry(Part.LineSegment(App.Vector(72, 36, 0), App.Vector(72, 45, 0)), False)
sketch7.addGeometry(Part.LineSegment(App.Vector(72, 45, 0), App.Vector(63, 45, 0)), False)
sketch7.addGeometry(Part.LineSegment(App.Vector(9, 72, 0), App.Vector(9, 63, 0)), False)
sketch7.addGeometry(Part.LineSegment(App.Vector(9, 63, 0), App.Vector(18, 63, 0)), False)
sketch7.addGeometry(Part.LineSegment(App.Vector(18, 63, 0), App.Vector(18, 72, 0)), False)
sketch7.addGeometry(Part.LineSegment(App.Vector(18, 72, 0), App.Vector(9, 72, 0)), False)
sketch7.addGeometry(Part.LineSegment(App.Vector(36, 72, 0), App.Vector(36, 63, 0)), False)
sketch7.addGeometry(Part.LineSegment(App.Vector(36, 63, 0), App.Vector(45, 63, 0)), False)
sketch7.addGeometry(Part.LineSegment(App.Vector(45, 63, 0), App.Vector(45, 72, 0)), False)
sketch7.addGeometry(Part.LineSegment(App.Vector(45, 72, 0), App.Vector(36, 72, 0)), False)
sketch7.addGeometry(Part.LineSegment(App.Vector(63, 72, 0), App.Vector(63, 63, 0)), False)
sketch7.addGeometry(Part.LineSegment(App.Vector(63, 63, 0), App.Vector(72, 63, 0)), False)
sketch7.addGeometry(Part.LineSegment(App.Vector(72, 63, 0), App.Vector(72, 72, 0)), False)
sketch7.addGeometry(Part.LineSegment(App.Vector(72, 72, 0), App.Vector(63, 72, 0)), False)
sketch7.addConstraint(Sketcher.Constraint("Coincident", 0, 2, 1, 1))
sketch7.addConstraint(Sketcher.Constraint("Coincident", 1, 2, 2, 1))
sketch7.addConstraint(Sketcher.Constraint("Coincident", 2, 2, 3, 1))
sketch7.addConstraint(Sketcher.Constraint("Coincident", 3, 2, 0, 1))
sketch7.addConstraint(Sketcher.Constraint("Coincident", 4, 2, 5, 1))
sketch7.addConstraint(Sketcher.Constraint("Coincident", 5, 2, 6, 1))
sketch7.addConstraint(Sketcher.Constraint("Coincident", 6, 2, 7, 1))
sketch7.addConstraint(Sketcher.Constraint("Coincident", 7, 2, 4, 1))
sketch7.addConstraint(Sketcher.Constraint("Coincident", 8, 2, 9, 1))
sketch7.addConstraint(Sketcher.Constraint("Coincident", 9, 2, 10, 1))
sketch7.addConstraint(Sketcher.Constraint("Coincident", 10, 2, 11, 1))
sketch7.addConstraint(Sketcher.Constraint("Coincident", 11, 2, 8, 1))
sketch7.addConstraint(Sketcher.Constraint("Coincident", 12, 2, 13, 1))
sketch7.addConstraint(Sketcher.Constraint("Coincident", 13, 2, 14, 1))
sketch7.addConstraint(Sketcher.Constraint("Coincident", 14, 2, 15, 1))
sketch7.addConstraint(Sketcher.Constraint("Coincident", 15, 2, 12, 1))
sketch7.addConstraint(Sketcher.Constraint("Coincident", 16, 2, 17, 1))
sketch7.addConstraint(Sketcher.Constraint("Coincident", 17, 2, 18, 1))
sketch7.addConstraint(Sketcher.Constraint("Coincident", 18, 2, 19, 1))
sketch7.addConstraint(Sketcher.Constraint("Coincident", 19, 2, 16, 1))
sketch7.addConstraint(Sketcher.Constraint("Coincident", 20, 2, 21, 1))
sketch7.addConstraint(Sketcher.Constraint("Coincident", 21, 2, 22, 1))
sketch7.addConstraint(Sketcher.Constraint("Coincident", 22, 2, 23, 1))
sketch7.addConstraint(Sketcher.Constraint("Coincident", 23, 2, 20, 1))
sketch7.addConstraint(Sketcher.Constraint("Coincident", 24, 2, 25, 1))
sketch7.addConstraint(Sketcher.Constraint("Coincident", 25, 2, 26, 1))
sketch7.addConstraint(Sketcher.Constraint("Coincident", 26, 2, 27, 1))
sketch7.addConstraint(Sketcher.Constraint("Coincident", 27, 2, 24, 1))
sketch7.addConstraint(Sketcher.Constraint("Coincident", 28, 2, 29, 1))
sketch7.addConstraint(Sketcher.Constraint("Coincident", 29, 2, 30, 1))
sketch7.addConstraint(Sketcher.Constraint("Coincident", 30, 2, 31, 1))
sketch7.addConstraint(Sketcher.Constraint("Coincident", 31, 2, 28, 1))
sketch7.addConstraint(Sketcher.Constraint("Vertical", 0))
sketch7.addConstraint(Sketcher.Constraint("Horizontal", 1))
sketch7.addConstraint(Sketcher.Constraint("Vertical", 2))
sketch7.addConstraint(Sketcher.Constraint("Horizontal", 3))
sketch7.addConstraint(Sketcher.Constraint("Vertical", 4))
sketch7.addConstraint(Sketcher.Constraint("Horizontal", 5))
sketch7.addConstraint(Sketcher.Constraint("Vertical", 6))
sketch7.addConstraint(Sketcher.Constraint("Horizontal", 7))
sketch7.addConstraint(Sketcher.Constraint("Vertical", 8))
sketch7.addConstraint(Sketcher.Constraint("Horizontal", 9))
sketch7.addConstraint(Sketcher.Constraint("Vertical", 10))
sketch7.addConstraint(Sketcher.Constraint("Horizontal", 11))
sketch7.addConstraint(Sketcher.Constraint("Vertical", 12))
sketch7.addConstraint(Sketcher.Constraint("Horizontal", 13))
sketch7.addConstraint(Sketcher.Constraint("Vertical", 14))
sketch7.addConstraint(Sketcher.Constraint("Horizontal", 15))
sketch7.addConstraint(Sketcher.Constraint("Vertical", 16))
sketch7.addConstraint(Sketcher.Constraint("Horizontal", 17))
sketch7.addConstraint(Sketcher.Constraint("Vertical", 18))
sketch7.addConstraint(Sketcher.Constraint("Horizontal", 19))
sketch7.addConstraint(Sketcher.Constraint("Vertical", 20))
sketch7.addConstraint(Sketcher.Constraint("Horizontal", 21))
sketch7.addConstraint(Sketcher.Constraint("Vertical", 22))
sketch7.addConstraint(Sketcher.Constraint("Horizontal", 23))
sketch7.addConstraint(Sketcher.Constraint("Vertical", 24))
sketch7.addConstraint(Sketcher.Constraint("Horizontal", 25))
sketch7.addConstraint(Sketcher.Constraint("Vertical", 26))
sketch7.addConstraint(Sketcher.Constraint("Horizontal", 27))
sketch7.addConstraint(Sketcher.Constraint("Vertical", 28))
sketch7.addConstraint(Sketcher.Constraint("Horizontal", 29))
sketch7.addConstraint(Sketcher.Constraint("Vertical", 30))
sketch7.addConstraint(Sketcher.Constraint("Horizontal", 31))
sketch7.addConstraint(Sketcher.Constraint("Horizontal", 1, 2, 4, 2))
sketch7.addConstraint(Sketcher.Constraint("Horizontal", 3, 2, 6, 2))
sketch7.addConstraint(Sketcher.Constraint("Horizontal", 5, 2, 8, 2))
sketch7.addConstraint(Sketcher.Constraint("Horizontal", 7, 2, 10, 2))
sketch7.addConstraint(Sketcher.Constraint("Horizontal", 13, 2, 16, 2))
sketch7.addConstraint(Sketcher.Constraint("Horizontal", 15, 2, 18, 2))
sketch7.addConstraint(Sketcher.Constraint("Horizontal", 21, 2, 24, 2))
sketch7.addConstraint(Sketcher.Constraint("Horizontal", 23, 2, 26, 2))
sketch7.addConstraint(Sketcher.Constraint("Horizontal", 25, 2, 28, 2))
sketch7.addConstraint(Sketcher.Constraint("Horizontal", 27, 2, 30, 2))
sketch7.addConstraint(Sketcher.Constraint("Vertical", 3, 2, 12, 2))
sketch7.addConstraint(Sketcher.Constraint("Vertical", 2, 2, 13, 2))
sketch7.addConstraint(Sketcher.Constraint("Vertical", 11, 2, 16, 2))
sketch7.addConstraint(Sketcher.Constraint("Vertical", 10, 2, 17, 2))
sketch7.addConstraint(Sketcher.Constraint("Vertical", 15, 2, 20, 2))
sketch7.addConstraint(Sketcher.Constraint("Vertical", 14, 2, 21, 2))
sketch7.addConstraint(Sketcher.Constraint("Vertical", 7, 2, 24, 2))
sketch7.addConstraint(Sketcher.Constraint("Vertical", 6, 2, 25, 2))
sketch7.addConstraint(Sketcher.Constraint("Vertical", 19, 2, 28, 2))
sketch7.addConstraint(Sketcher.Constraint("Vertical", 18, 2, 29, 2))
sketch7.addConstraint(Sketcher.Constraint("Equal", 3, 5))
sketch7.addConstraint(Sketcher.Constraint("Equal", 7, 9))
sketch7.addConstraint(Sketcher.Constraint("Equal", 31, 0))
sketch7.addConstraint(Sketcher.Constraint("Equal", 10, 12))
sketch7.addConstraint(Sketcher.Constraint("Equal", 18, 20))
sketch7.addConstraint(Sketcher.Constraint("DistanceX", 1, 1, 1, 2, Q("9 mm")))
sketch7.addConstraint(Sketcher.Constraint("DistanceX", -1, 1, 0, 2, Q("9 mm")))
sketch7.addConstraint(Sketcher.Constraint("DistanceY", -1, 1, 0, 2, Q("9 mm")))
sketch7.addConstraint(Sketcher.Constraint("DistanceX", -1, 1, 4, 2, Q("36 mm")))
sketch7.addConstraint(Sketcher.Constraint("DistanceX", -1, 1, 8, 2, Q("63 mm")))
sketch7.addConstraint(Sketcher.Constraint("DistanceY", -1, 1, 12, 2, Q("36 mm")))
sketch7.addConstraint(Sketcher.Constraint("DistanceY", -1, 1, 20, 2, Q("63 mm")))
sketch7.setExpression("Constraints[89]", "Params.sketch7_width")
pocket6 = body.newObject("PartDesign::Pocket", "Pocket005")
pocket6.Profile = sketch7
pocket6.Type = "ThroughAll"
pocket6.Reversed = True

doc.recompute()
